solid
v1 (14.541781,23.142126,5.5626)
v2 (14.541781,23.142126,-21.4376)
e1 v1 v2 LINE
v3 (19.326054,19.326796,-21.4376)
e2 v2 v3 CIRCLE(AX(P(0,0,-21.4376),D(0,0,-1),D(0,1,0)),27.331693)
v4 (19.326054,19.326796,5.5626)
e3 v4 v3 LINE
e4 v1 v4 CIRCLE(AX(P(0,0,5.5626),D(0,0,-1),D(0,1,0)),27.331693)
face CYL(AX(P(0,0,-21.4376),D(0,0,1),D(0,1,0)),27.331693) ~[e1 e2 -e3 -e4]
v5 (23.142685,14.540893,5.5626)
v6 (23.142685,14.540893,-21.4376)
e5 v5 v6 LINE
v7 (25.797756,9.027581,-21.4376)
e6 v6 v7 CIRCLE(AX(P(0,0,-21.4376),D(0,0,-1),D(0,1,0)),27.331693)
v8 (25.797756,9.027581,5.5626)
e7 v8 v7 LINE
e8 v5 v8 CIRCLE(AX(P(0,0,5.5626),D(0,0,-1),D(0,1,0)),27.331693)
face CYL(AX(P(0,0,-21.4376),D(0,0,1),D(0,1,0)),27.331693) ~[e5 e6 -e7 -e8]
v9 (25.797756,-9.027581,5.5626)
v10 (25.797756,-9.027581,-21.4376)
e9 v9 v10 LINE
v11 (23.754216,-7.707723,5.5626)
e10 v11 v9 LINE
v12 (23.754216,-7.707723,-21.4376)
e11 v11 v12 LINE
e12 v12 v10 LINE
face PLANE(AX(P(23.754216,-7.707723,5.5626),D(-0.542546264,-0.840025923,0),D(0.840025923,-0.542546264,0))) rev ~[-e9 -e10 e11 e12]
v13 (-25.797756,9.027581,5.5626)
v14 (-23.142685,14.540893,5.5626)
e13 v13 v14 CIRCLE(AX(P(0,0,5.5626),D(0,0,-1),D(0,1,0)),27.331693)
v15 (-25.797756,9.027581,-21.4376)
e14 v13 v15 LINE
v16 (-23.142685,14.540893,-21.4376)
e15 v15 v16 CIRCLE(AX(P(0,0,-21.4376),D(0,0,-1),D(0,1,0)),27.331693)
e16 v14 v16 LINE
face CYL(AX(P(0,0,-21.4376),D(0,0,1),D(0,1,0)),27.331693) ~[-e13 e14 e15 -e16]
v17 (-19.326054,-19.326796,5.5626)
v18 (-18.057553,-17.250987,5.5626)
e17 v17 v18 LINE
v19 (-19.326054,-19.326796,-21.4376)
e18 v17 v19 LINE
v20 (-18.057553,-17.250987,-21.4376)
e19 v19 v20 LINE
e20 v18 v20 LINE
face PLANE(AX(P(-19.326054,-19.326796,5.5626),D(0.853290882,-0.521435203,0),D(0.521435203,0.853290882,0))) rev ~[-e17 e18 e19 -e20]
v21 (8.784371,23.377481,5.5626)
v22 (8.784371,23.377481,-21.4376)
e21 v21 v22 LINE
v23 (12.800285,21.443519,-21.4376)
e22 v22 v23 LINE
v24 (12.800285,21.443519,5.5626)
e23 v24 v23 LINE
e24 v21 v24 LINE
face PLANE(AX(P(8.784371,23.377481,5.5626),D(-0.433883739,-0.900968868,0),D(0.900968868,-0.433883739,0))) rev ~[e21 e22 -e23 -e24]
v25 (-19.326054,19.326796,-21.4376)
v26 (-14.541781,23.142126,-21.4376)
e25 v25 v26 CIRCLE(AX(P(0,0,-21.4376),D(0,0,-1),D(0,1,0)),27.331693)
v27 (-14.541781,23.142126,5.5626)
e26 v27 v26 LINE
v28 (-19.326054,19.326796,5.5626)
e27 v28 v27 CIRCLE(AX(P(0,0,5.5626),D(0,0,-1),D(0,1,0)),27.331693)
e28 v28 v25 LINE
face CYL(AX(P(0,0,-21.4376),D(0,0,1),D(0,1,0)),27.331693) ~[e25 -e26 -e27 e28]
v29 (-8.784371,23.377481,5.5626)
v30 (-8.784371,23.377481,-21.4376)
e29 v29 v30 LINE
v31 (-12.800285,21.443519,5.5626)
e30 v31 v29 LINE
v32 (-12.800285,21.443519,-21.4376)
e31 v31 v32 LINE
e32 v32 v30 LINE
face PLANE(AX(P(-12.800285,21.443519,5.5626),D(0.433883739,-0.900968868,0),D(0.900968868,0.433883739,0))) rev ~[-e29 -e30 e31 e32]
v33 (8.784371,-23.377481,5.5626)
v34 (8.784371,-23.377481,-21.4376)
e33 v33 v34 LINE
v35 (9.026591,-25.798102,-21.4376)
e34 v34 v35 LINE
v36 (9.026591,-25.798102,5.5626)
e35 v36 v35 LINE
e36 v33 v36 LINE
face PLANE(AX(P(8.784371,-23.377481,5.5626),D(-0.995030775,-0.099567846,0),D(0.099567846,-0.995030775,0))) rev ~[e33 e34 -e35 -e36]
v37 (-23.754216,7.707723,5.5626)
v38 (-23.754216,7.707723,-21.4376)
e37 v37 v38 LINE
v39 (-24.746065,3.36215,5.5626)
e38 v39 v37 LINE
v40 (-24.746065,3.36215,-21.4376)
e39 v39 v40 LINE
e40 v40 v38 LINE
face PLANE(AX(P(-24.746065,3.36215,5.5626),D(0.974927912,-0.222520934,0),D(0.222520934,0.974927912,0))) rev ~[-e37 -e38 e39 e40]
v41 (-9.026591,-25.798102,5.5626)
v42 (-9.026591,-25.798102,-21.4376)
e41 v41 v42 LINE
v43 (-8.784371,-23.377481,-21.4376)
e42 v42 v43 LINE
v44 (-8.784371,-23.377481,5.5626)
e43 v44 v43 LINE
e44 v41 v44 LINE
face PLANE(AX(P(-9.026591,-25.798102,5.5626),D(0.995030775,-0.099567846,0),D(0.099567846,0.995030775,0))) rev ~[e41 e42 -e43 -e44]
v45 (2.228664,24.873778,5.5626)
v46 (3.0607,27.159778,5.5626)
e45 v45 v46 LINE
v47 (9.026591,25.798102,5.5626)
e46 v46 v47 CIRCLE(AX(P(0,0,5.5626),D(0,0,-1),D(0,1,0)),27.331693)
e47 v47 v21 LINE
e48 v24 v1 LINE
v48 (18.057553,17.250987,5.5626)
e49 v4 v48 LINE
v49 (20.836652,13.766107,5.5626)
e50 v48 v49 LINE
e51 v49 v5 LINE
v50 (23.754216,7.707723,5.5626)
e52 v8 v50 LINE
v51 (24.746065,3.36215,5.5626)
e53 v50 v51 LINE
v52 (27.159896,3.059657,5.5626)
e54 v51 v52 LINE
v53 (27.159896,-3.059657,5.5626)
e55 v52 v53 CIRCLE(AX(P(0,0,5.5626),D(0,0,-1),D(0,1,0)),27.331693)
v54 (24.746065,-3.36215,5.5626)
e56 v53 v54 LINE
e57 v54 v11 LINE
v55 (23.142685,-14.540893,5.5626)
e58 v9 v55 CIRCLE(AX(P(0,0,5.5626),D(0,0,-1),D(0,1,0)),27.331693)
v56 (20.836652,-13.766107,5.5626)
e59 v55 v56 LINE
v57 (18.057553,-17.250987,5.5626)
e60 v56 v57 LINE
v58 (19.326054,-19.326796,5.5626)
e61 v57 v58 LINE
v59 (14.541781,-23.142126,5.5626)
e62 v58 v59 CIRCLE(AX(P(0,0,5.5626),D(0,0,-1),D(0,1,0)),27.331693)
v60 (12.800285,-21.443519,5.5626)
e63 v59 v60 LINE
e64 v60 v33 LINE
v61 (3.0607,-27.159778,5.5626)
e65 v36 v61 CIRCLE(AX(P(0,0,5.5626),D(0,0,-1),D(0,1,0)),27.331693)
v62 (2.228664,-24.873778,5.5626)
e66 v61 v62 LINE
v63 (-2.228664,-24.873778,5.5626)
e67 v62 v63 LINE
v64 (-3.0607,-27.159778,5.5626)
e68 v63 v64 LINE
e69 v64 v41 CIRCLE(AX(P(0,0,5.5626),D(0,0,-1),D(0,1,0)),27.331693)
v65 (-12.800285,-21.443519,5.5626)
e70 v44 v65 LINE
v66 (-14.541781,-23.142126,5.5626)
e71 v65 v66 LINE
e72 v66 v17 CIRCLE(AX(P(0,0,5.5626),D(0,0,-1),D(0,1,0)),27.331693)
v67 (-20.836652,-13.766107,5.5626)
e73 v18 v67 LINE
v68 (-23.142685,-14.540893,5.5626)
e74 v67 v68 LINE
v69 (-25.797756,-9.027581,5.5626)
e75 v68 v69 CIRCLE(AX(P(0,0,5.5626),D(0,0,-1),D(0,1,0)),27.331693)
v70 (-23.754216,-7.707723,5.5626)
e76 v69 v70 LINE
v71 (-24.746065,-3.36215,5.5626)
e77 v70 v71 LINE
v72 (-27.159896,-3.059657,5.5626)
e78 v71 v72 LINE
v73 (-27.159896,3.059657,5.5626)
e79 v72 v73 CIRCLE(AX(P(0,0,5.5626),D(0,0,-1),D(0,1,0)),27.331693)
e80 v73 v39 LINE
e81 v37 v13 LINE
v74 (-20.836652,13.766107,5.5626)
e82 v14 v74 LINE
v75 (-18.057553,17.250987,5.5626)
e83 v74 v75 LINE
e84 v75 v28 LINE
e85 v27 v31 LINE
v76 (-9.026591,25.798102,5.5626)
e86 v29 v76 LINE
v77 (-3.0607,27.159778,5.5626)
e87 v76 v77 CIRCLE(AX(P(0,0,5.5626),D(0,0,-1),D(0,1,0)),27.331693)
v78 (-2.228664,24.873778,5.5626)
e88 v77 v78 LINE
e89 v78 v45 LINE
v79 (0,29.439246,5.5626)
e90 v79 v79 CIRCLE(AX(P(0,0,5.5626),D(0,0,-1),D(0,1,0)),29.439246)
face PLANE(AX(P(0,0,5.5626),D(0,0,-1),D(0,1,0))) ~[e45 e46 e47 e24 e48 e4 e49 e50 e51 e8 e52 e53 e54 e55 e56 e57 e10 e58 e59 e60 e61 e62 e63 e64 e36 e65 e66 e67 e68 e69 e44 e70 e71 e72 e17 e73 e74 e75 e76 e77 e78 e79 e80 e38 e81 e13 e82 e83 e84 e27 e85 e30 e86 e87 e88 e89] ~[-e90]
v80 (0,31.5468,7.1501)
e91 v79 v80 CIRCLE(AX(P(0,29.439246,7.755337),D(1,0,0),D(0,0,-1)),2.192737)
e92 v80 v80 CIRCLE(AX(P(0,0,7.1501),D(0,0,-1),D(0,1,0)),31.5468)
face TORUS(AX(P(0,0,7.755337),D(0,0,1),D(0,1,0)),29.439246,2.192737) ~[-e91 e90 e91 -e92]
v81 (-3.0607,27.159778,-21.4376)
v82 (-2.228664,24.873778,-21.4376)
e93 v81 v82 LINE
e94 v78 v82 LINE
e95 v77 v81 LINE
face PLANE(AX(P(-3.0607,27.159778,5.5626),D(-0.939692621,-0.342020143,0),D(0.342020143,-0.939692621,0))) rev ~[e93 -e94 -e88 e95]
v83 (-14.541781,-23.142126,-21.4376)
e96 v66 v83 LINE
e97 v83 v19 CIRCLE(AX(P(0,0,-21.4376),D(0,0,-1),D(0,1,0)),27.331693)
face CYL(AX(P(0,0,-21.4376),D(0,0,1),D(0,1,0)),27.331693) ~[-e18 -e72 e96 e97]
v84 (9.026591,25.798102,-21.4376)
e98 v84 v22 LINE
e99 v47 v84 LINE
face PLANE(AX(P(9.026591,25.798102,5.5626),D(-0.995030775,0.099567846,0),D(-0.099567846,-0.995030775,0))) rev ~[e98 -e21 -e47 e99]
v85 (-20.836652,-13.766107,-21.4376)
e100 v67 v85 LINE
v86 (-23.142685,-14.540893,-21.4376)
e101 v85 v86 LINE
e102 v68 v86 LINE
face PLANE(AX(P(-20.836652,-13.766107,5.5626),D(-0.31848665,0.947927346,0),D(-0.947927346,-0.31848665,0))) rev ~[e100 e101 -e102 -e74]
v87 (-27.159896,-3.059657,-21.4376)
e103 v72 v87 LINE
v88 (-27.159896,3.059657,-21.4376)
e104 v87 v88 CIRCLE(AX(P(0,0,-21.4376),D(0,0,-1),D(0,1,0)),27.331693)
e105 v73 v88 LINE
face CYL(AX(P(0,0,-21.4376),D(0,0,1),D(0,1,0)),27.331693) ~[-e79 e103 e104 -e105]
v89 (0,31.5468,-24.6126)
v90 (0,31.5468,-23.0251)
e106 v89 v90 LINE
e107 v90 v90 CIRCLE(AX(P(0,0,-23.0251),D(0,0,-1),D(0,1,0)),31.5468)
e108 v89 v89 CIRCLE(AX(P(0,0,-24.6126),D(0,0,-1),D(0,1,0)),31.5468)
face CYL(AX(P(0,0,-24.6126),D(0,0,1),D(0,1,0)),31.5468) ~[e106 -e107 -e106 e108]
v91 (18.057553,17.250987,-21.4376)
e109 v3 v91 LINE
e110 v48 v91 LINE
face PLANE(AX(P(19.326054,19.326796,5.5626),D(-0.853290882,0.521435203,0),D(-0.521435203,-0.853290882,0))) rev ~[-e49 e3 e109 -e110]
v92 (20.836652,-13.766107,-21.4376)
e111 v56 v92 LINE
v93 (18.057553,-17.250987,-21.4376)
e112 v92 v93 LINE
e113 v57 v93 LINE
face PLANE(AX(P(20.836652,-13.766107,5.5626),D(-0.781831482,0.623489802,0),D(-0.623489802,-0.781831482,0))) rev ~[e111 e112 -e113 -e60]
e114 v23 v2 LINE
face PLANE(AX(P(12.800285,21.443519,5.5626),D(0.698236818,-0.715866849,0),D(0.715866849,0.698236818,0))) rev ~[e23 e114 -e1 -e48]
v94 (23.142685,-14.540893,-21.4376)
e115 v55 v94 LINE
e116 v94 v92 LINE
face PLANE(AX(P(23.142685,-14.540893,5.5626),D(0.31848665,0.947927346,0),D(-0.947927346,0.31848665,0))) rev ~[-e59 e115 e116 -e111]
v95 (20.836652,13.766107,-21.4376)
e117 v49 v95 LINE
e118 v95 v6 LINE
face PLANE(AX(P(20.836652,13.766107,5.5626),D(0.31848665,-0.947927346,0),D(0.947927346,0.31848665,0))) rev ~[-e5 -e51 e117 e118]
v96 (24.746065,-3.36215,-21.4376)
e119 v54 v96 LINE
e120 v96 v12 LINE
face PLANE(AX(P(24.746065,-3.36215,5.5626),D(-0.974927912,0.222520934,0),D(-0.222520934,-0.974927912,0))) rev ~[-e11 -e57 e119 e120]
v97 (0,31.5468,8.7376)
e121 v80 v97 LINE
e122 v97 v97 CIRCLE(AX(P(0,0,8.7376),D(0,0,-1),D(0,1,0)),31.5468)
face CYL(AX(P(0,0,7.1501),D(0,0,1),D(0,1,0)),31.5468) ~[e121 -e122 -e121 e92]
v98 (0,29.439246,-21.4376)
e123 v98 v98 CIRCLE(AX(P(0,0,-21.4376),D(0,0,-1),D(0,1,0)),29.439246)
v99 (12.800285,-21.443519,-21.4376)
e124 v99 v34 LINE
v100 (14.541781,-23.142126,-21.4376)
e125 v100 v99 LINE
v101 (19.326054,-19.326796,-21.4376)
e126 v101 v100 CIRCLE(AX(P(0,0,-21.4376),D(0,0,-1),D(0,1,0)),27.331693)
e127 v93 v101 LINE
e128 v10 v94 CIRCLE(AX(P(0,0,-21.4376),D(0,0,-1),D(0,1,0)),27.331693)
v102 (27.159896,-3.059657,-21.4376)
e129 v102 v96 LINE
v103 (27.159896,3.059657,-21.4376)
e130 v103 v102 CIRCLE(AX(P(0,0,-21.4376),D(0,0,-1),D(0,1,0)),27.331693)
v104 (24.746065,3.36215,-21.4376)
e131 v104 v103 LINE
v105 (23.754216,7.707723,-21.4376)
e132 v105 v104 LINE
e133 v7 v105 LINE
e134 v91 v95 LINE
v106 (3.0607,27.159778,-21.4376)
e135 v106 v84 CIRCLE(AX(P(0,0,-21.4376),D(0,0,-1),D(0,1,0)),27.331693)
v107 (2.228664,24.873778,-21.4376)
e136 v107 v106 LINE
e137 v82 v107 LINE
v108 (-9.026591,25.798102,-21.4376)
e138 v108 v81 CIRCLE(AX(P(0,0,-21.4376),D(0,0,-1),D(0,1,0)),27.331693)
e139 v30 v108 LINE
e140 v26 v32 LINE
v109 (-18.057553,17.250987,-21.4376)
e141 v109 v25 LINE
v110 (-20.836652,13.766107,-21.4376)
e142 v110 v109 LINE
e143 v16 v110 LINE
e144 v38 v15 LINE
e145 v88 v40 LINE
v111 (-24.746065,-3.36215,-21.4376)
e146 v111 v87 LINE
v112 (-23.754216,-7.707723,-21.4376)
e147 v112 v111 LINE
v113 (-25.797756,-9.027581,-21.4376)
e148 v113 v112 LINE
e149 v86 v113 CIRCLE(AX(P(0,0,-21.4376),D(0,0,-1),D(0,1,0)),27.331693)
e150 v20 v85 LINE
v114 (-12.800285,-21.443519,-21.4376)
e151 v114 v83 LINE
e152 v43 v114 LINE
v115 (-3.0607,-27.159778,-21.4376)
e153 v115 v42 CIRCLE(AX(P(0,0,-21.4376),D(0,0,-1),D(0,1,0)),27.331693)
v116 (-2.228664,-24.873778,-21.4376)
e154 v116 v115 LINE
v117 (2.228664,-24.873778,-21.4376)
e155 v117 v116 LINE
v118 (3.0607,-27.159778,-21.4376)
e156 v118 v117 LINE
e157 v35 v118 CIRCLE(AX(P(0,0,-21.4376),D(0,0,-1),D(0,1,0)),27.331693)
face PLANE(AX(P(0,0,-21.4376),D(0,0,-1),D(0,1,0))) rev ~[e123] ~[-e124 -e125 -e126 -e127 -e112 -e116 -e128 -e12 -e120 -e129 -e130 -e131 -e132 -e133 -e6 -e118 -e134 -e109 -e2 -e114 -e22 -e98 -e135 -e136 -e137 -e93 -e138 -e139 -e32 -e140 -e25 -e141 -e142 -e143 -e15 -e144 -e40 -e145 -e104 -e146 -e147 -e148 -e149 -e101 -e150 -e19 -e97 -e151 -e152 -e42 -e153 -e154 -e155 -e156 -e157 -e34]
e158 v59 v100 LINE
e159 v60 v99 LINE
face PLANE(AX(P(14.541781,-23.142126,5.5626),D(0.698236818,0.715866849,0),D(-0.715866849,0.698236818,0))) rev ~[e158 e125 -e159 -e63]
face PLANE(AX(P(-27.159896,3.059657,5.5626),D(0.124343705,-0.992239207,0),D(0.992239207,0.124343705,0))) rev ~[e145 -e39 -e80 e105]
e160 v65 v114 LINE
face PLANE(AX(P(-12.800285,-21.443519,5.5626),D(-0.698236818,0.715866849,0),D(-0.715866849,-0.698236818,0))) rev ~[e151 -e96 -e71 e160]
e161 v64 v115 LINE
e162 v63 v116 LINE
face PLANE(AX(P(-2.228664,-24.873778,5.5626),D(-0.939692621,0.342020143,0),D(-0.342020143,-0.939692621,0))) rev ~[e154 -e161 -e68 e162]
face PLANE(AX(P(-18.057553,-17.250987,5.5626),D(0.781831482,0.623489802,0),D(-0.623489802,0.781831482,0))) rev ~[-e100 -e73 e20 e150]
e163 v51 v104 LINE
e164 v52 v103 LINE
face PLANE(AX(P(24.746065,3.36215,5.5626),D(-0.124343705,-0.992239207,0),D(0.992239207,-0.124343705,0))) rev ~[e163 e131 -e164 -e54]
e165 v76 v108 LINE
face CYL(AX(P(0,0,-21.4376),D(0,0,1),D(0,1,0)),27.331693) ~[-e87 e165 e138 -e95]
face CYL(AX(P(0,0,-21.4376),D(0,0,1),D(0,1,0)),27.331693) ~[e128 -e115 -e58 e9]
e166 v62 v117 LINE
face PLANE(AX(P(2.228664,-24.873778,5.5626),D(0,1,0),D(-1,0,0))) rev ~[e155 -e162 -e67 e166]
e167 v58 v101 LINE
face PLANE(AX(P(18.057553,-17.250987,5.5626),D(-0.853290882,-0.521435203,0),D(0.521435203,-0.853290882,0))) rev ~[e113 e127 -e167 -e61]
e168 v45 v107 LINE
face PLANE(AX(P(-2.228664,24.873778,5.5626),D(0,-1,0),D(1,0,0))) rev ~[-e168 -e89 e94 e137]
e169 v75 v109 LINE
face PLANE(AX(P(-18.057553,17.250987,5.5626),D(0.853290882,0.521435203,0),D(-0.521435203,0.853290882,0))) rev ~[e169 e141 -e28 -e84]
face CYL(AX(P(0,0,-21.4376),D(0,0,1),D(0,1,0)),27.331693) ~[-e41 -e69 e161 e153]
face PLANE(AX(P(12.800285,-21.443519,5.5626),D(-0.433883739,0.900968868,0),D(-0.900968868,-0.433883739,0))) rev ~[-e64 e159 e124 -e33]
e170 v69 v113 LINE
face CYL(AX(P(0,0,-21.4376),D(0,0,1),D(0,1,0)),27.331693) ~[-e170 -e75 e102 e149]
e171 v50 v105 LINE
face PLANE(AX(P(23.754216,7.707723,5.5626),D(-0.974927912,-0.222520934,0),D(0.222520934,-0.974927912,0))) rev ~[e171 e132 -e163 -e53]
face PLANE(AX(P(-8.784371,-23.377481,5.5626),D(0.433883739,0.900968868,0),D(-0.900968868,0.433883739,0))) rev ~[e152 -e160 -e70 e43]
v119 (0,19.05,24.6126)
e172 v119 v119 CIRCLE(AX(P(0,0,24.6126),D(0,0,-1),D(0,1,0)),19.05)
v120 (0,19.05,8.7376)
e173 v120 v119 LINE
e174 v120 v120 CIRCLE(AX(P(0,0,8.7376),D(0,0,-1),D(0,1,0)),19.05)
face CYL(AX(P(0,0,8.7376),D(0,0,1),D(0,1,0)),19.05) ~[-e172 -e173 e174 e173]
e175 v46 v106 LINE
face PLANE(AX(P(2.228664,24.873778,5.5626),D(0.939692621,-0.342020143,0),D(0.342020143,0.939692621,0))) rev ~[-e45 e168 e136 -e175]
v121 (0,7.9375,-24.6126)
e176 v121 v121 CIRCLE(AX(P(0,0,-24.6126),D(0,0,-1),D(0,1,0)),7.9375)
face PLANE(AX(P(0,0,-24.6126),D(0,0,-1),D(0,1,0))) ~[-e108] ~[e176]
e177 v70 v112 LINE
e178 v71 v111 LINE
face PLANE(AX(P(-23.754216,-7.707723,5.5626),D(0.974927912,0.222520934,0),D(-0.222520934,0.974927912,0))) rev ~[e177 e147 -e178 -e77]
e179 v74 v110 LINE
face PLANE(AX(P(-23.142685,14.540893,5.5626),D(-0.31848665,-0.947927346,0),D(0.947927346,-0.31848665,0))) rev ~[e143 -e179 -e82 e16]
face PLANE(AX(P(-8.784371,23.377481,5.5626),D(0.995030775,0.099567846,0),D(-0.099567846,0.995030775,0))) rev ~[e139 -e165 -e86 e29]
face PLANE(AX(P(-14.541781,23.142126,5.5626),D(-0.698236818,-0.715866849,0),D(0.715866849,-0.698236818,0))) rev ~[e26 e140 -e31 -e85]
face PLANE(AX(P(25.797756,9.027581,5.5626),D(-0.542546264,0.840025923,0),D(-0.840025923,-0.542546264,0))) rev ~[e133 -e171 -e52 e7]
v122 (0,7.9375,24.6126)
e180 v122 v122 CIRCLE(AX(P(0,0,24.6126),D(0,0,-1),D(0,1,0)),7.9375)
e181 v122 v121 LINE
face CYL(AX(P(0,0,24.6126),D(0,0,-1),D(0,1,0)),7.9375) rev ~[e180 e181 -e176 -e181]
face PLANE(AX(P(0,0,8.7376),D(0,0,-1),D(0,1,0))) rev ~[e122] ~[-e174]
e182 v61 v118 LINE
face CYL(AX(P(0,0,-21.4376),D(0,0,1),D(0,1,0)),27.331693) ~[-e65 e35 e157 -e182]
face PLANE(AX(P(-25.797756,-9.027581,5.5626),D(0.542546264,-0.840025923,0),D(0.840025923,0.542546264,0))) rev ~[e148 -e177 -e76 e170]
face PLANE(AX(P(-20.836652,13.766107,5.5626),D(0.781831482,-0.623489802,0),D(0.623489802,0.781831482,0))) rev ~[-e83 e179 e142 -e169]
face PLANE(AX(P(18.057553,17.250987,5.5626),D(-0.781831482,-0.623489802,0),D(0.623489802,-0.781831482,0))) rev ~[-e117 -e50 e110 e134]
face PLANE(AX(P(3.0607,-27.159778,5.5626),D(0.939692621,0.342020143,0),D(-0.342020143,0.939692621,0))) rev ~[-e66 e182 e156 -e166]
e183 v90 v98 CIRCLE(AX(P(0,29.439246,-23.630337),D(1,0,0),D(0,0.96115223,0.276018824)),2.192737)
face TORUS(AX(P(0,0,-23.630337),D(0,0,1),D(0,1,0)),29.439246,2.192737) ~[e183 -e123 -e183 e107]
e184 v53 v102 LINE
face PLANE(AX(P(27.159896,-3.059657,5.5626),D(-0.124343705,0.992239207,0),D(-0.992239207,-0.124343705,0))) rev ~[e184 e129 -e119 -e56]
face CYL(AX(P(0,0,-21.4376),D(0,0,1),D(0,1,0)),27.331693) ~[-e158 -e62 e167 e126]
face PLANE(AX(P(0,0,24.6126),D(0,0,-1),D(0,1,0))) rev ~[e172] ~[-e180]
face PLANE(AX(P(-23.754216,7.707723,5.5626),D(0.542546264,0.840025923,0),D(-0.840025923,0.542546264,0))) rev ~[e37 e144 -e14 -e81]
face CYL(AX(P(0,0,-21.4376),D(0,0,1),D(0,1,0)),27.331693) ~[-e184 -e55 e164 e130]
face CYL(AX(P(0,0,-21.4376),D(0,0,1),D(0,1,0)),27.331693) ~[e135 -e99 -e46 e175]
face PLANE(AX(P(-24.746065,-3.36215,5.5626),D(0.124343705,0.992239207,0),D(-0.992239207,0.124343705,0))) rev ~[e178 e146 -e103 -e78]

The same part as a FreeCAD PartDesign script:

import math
import FreeCAD as App
import Part
import Sketcher

V = App.Vector
Q = App.Units.Quantity

doc = App.newDocument("Part")
body = doc.addObject("PartDesign::Body", "Body")

# Sketch on YZ plane
sketch1 = body.newObject("Sketcher::SketchObject", "Sketch")
sketch1.AttachmentSupport = (doc.getObject("YZ_Plane"), [""])
sketch1.MapMode = "FlatFace"
sketch1.addGeometry([
    Part.LineSegment(V(7.9, 24.6, 0), V(7.9, -24.6, 0)),  # 0
    Part.LineSegment(V(7.9, -24.6, 0), V(31.5, -24.6, 0)),  # 1
    Part.LineSegment(V(31.5, -24.6, 0), V(31.5, -23, 0)),  # 2
    Part.ArcOfCircle(Part.Circle(V(29.4, -23.6, 0), V(0, 0, 1), 2.2), math.radians(16), math.radians(90)),  # 3
    Part.LineSegment(V(29.4, -21.4, 0), V(27.3, -21.4, 0)),  # 4
    Part.LineSegment(V(27.3, -21.4, 0), V(27.3, 5.6, 0)),  # 5
    Part.LineSegment(V(27.3, 5.6, 0), V(29.4, 5.6, 0)),  # 6
    Part.ArcOfCircle(Part.Circle(V(29.4, 7.8, 0), V(0, 0, 1), 2.2), math.radians(-90), math.radians(-16)),  # 7
    Part.LineSegment(V(31.5, 7.2, 0), V(31.5, 8.7, 0)),  # 8
    Part.LineSegment(V(31.5, 8.7, 0), V(19.1, 8.7, 0)),  # 9
    Part.LineSegment(V(19.1, 8.7, 0), V(19.1, 24.6, 0)),  # 10
    Part.LineSegment(V(19.1, 24.6, 0), V(7.9, 24.6, 0)),  # 11
], False)
sketch1.addConstraint([
    Sketcher.Constraint("Coincident", 0, 2, 1, 1),
    Sketcher.Constraint("Coincident", 1, 2, 2, 1),
    Sketcher.Constraint("Coincident", 2, 2, 3, 1),
    Sketcher.Constraint("Tangent", 3, 2, 4, 1),
    Sketcher.Constraint("Coincident", 4, 2, 5, 1),
    Sketcher.Constraint("Coincident", 5, 2, 6, 1),
    Sketcher.Constraint("Tangent", 6, 2, 7, 1),
    Sketcher.Constraint("Coincident", 7, 2, 8, 1),
    Sketcher.Constraint("Coincident", 8, 2, 9, 1),
    Sketcher.Constraint("Coincident", 9, 2, 10, 1),
    Sketcher.Constraint("Coincident", 10, 2, 11, 1),
    Sketcher.Constraint("Coincident", 11, 2, 0, 1),
    Sketcher.Constraint("Vertical", 0),
    Sketcher.Constraint("Horizontal", 1),
    Sketcher.Constraint("Vertical", 2),
    Sketcher.Constraint("Horizontal", 4),
    Sketcher.Constraint("Vertical", 5),
    Sketcher.Constraint("Horizontal", 6),
    Sketcher.Constraint("Vertical", 8),
    Sketcher.Constraint("Horizontal", 9),
    Sketcher.Constraint("Vertical", 10),
    Sketcher.Constraint("Horizontal", 11),
    Sketcher.Constraint("Equal", 3, 7),
    Sketcher.Constraint("Vertical", 3, 3, 7, 3),
    Sketcher.Constraint("Vertical", 2, 2, 7, 2),
    Sketcher.Constraint("Equal", 2, 8),
    Sketcher.Constraint("DistanceX", 9, 2, 9, 1, Q("0.492 in")),
    Sketcher.Constraint("DistanceX", 11, 2, 11, 1, Q("0.4375 in")),
    Sketcher.Constraint("DistanceY", 0, 2, 0, 1, Q("1.938 in")),
    Sketcher.Constraint("DistanceY", 2, 1, 2, 2, Q("0.0625 in")),
    Sketcher.Constraint("DistanceY", 5, 1, 5, 2, Q("1.063 in")),
    Sketcher.Constraint("DistanceY", 10, 1, 10, 2, Q("0.625 in")),
    Sketcher.Constraint("DistanceX", -1, 1, 9, 2, Q("0.75 in")),
    Sketcher.Constraint("DistanceY", 0, 2, -1, 1, Q("0.969 in")),
    Sketcher.Constraint("Radius", 3, 2.192737),
    Sketcher.Constraint("DistanceX", 4, 2, 4, 1, 2.107554),
])
revolution = body.newObject("PartDesign::Revolution", "Revolution")
revolution.Profile = sketch1
revolution.ReferenceAxis = (sketch1, ["V_Axis"])
revolution.Angle = 360

# Sketch on XY plane
sketch2 = body.newObject("Sketcher::SketchObject", "Sketch001")
sketch2.AttachmentSupport = (doc.getObject("XY_Plane"), [""])
sketch2.MapMode = "FlatFace"
sketch2.AttachmentOffset = App.Placement(V(0, 0, 0.219 * 25.4), App.Rotation())
sketch2.addGeometry([
    Part.LineSegment(V(-2.2, 24.9, 0), V(2.2, 24.9, 0)),
    Part.LineSegment(V(2.2, 24.9, 0), V(3.1, 27.2, 0)),
    Part.ArcOfCircle(Part.Circle(V(0, 0, 0), V(0, 0, 1), 27.3), math.radians(83.57), math.radians(96.43)),
    Part.LineSegment(V(-3.1, 27.2, 0), V(-2.2, 24.9, 0)),
], False)
sketch2.addConstraint([
    Sketcher.Constraint("Coincident", 0, 2, 1, 1),
    Sketcher.Constraint("Coincident", 1, 2, 2, 1),
    Sketcher.Constraint("Coincident", 2, 2, 3, 1),
    Sketcher.Constraint("Coincident", 3, 2, 0, 1),
    Sketcher.Constraint("Horizontal", 0),
    Sketcher.Constraint("Coincident", 2, 3, -1, 1),
    Sketcher.Constraint("Horizontal", 1, 2, 2, 2),
    Sketcher.Constraint("Equal", 1, 3),
    Sketcher.Constraint("Angle", 1, Q("70 deg")),
    Sketcher.Constraint("DistanceY", 0, 2, 1, 2, Q("0.09 in")),
    Sketcher.Constraint("DistanceX", 2, 2, 1, 2, Q("0.241 in")),
    Sketcher.Constraint("Radius", 2, 27.331693),
])
pocket1 = body.newObject("PartDesign::Pocket", "Pocket")
pocket1.Profile = sketch2
pocket1.Length = Q("1.063 in")
doc.recompute()

polarpattern = body.newObject("PartDesign::PolarPattern", "PolarPattern")
polarpattern.Originals = [pocket1]
polarpattern.Axis = (doc.getObject("Z_Axis"), [""])
polarpattern.Angle = 360
polarpattern.Occurrences = 14
body.Tip = polarpattern

doc.recompute()
